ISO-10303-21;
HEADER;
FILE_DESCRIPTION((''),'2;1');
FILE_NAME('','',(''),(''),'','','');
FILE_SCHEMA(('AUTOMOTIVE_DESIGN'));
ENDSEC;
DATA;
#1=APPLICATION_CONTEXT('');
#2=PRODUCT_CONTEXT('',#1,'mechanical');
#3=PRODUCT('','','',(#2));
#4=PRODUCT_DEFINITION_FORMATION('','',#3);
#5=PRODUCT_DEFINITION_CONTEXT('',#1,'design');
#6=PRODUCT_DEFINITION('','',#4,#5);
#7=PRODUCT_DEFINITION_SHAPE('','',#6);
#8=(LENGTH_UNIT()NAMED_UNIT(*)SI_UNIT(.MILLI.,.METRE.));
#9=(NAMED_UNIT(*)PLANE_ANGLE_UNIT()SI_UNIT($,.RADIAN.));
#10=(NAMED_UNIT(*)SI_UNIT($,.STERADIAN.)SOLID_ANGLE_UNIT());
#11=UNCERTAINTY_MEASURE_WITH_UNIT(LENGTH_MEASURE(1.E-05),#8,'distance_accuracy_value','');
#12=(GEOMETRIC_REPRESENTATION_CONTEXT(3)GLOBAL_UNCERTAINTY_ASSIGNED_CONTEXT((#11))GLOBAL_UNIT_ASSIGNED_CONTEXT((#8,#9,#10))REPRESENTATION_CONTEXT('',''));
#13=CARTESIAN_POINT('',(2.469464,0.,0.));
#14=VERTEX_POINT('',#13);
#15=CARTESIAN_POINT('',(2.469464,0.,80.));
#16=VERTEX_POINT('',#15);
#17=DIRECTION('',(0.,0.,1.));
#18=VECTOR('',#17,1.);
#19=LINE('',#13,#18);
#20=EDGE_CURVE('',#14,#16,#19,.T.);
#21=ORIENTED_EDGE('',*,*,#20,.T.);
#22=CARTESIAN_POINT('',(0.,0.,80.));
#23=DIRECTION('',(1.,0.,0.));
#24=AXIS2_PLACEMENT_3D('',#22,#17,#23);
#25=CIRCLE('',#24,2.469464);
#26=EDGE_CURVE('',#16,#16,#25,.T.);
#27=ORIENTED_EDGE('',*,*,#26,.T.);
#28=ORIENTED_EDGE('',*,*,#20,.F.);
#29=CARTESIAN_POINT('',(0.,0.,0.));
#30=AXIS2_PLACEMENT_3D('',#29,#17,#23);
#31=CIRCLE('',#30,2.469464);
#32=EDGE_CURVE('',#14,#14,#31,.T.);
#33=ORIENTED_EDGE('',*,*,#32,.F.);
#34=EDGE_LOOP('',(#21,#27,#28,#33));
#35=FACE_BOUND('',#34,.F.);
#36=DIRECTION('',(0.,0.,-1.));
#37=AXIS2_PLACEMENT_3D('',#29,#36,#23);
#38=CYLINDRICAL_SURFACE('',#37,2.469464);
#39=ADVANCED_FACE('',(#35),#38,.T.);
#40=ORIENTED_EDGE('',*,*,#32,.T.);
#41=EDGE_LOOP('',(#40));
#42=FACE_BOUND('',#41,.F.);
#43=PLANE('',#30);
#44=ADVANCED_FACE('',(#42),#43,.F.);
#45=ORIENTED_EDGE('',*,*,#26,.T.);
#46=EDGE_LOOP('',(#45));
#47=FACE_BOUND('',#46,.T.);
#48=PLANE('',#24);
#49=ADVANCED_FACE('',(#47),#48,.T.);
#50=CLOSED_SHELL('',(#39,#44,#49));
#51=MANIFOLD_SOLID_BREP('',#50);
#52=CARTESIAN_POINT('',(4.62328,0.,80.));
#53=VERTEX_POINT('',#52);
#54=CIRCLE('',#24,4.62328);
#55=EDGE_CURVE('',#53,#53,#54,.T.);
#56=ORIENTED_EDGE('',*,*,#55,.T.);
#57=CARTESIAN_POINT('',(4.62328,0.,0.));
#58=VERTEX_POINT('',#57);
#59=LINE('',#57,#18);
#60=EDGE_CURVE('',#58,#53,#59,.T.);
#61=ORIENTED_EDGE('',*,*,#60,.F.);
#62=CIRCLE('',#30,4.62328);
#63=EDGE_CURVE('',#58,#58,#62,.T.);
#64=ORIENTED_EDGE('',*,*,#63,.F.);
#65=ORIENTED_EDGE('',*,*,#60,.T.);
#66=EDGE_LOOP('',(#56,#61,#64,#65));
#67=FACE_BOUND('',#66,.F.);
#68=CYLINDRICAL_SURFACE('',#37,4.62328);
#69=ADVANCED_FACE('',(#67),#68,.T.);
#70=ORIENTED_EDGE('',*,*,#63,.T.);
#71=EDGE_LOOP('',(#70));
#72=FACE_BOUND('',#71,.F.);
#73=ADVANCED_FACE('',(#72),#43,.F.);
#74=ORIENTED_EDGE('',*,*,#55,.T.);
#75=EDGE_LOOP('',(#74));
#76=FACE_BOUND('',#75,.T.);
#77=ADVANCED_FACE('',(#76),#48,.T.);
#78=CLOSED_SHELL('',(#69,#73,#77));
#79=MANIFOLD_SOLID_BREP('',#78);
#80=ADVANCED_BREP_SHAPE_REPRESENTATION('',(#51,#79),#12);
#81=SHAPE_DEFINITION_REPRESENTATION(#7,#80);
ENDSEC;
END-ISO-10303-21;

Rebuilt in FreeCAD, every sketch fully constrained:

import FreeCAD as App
import Part
import Sketcher

doc = App.newDocument("Part")
body = doc.addObject("PartDesign::Body", "Body")

# Sketch on XY plane
sketch1 = doc.addObject("Sketcher::SketchObject", "Sketch")
body.addObject(sketch1)
sketch1.AttachmentSupport = (doc.XY_Plane, [""])
sketch1.MapMode = "FlatFace"
sketch1.addGeometry(Part.Circle(App.Vector(0, 0, 0), App.Vector(0, 0, 1), 4.62328), False)
sketch1.addConstraint(Sketcher.Constraint("Coincident", 0, 3, -1, 1))
sketch1.addConstraint(Sketcher.Constraint("Diameter", 0, 9.246559))
pad1 = doc.addObject("PartDesign::Pad", "Pad")
body.addObject(pad1)
pad1.Profile = sketch1
pad1.Length = 80
body2 = doc.addObject("PartDesign::Body", "Body001")

# Sketch on XY plane
sketch2 = doc.addObject("Sketcher::SketchObject", "Sketch001")
body2.addObject(sketch2)
sketch2.AttachmentSupport = (doc.getObject("XY_Plane001"), [""])
sketch2.MapMode = "FlatFace"
sketch2.addGeometry(Part.Circle(App.Vector(0, 0, 0), App.Vector(0, 0, 1), 2.469464), False)
sketch2.addConstraint(Sketcher.Constraint("Coincident", 0, 3, -1, 1))
sketch2.addConstraint(Sketcher.Constraint("Diameter", 0, 4.938927))
pad2 = doc.addObject("PartDesign::Pad", "Pad001")
body2.addObject(pad2)
pad2.Profile = sketch2
pad2.Length = 80

doc.recompute()
